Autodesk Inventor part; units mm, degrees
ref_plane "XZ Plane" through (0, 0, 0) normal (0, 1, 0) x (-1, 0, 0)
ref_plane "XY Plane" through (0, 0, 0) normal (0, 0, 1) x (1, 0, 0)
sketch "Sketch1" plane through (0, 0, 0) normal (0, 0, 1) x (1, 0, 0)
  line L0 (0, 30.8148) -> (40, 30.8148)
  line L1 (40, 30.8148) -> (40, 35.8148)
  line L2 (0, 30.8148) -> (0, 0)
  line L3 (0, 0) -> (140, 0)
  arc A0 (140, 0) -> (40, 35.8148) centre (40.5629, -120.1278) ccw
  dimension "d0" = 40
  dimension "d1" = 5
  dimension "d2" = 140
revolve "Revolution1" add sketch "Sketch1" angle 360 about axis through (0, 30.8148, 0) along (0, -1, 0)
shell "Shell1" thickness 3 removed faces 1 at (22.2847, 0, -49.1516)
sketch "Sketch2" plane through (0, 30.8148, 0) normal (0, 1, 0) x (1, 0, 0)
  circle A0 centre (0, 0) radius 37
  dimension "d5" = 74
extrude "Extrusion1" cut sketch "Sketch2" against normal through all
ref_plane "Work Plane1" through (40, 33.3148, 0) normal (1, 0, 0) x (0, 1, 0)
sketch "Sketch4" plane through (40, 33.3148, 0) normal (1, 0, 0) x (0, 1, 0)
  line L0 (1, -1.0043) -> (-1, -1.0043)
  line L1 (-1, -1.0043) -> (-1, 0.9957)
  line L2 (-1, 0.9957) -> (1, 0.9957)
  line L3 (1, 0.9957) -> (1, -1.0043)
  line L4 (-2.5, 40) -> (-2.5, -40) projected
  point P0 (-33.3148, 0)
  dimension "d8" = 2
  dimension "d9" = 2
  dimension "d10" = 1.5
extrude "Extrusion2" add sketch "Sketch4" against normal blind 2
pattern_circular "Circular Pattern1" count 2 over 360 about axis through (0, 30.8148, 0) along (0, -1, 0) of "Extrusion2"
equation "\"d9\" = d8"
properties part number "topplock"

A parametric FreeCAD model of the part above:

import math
import FreeCAD as App
import Part
import Sketcher
Q = App.Units.Quantity


def faces_at(feature, points):
    """Names of the faces that lie closest to the given points."""
    faces = feature.Shape.Faces
    near = lambda p: min(range(len(faces)), key=lambda i: faces[i].distToShape(Part.Vertex(*p))[0])
    return sorted({f"Face{near(p) + 1}" for p in points})

doc = App.newDocument("Part")
params = doc.addObject("Spreadsheet::Sheet", "Params")
for row, (alias, value) in enumerate([
    ("sketch1_width", "40 mm"),
    ("sketch1_width2", "140 mm"),
    ("sketch1_height", "5 mm"),
    ("revolution_angle", "360 deg"),
    ("thickness_wall", "3 mm"),
    ("sketch2_diameter", "74 mm"),
    ("sketch3_width", "2 mm"),
    ("pad1_length", "2 mm"),
], start=1):
    params.set(f"A{row}", alias)
    params.set(f"B{row}", "=" + value)
    params.setAlias(f"B{row}", alias)

body = doc.addObject("PartDesign::Body", "Body")

sketch1 = body.newObject("Sketcher::SketchObject", "Sketch")
sketch1.AttachmentSupport = (doc.getObject("XY_Plane"), [""])
sketch1.MapMode = "FlatFace"
sketch1.addGeometry(Part.LineSegment(App.Vector(40, 30.8148, 0), App.Vector(0, 30.8148, 0)), False)
sketch1.addGeometry(Part.LineSegment(App.Vector(0, 30.8148, 0), App.Vector(0, 0, 0)), False)
sketch1.addGeometry(Part.LineSegment(App.Vector(0, 0, 0), App.Vector(140, 0, 0)), False)
sketch1.addGeometry(Part.ArcOfCircle(Part.Circle(App.Vector(40.5629, -120.1278, 0), App.Vector(0, 0, 1), 155.94366), math.radians(50.383371), math.radians(90.206817)), False)
sketch1.addGeometry(Part.LineSegment(App.Vector(40, 35.8148, 0), App.Vector(40, 30.8148, 0)), False)
sketch1.addConstraint(Sketcher.Constraint("Coincident", 0, 2, 1, 1))
sketch1.addConstraint(Sketcher.Constraint("Coincident", 1, 2, 2, 1))
sketch1.addConstraint(Sketcher.Constraint("Coincident", 2, 2, 3, 1))
sketch1.addConstraint(Sketcher.Constraint("Coincident", 3, 2, 4, 1))
sketch1.addConstraint(Sketcher.Constraint("Coincident", 4, 2, 0, 1))
sketch1.addConstraint(Sketcher.Constraint("Horizontal", 0))
sketch1.addConstraint(Sketcher.Constraint("Vertical", 1))
sketch1.addConstraint(Sketcher.Constraint("Horizontal", 2))
sketch1.addConstraint(Sketcher.Constraint("Vertical", 4))
sketch1.addConstraint(Sketcher.Constraint("Coincident", 1, 2, -1, 1))
sketch1.addConstraint(Sketcher.Constraint("DistanceX", 0, 2, 0, 1, Q("40 mm")))
sketch1.addConstraint(Sketcher.Constraint("DistanceX", 2, 1, 2, 2, Q("140 mm")))
sketch1.addConstraint(Sketcher.Constraint("DistanceY", 4, 2, 4, 1, Q("5 mm")))
sketch1.addConstraint(Sketcher.Constraint("Radius", 3, Q("155.9437 mm")))
sketch1.addConstraint(Sketcher.Constraint("DistanceY", 1, 2, 1, 1, Q("30.8148 mm")))
sketch1.setExpression("Constraints[10]", "Params.sketch1_width")
sketch1.setExpression("Constraints[11]", "Params.sketch1_width2")
sketch1.setExpression("Constraints[12]", "Params.sketch1_height")
revolution = body.newObject("PartDesign::Revolution", "Revolution")
revolution.Profile = sketch1
revolution.ReferenceAxis = (sketch1, ["V_Axis"])
revolution.setExpression("Angle", "Params.revolution_angle")
doc.recompute()

thickness = body.newObject("PartDesign::Thickness", "Thickness")
thickness.Base = (revolution, faces_at(revolution, [(22.285, 0, -49.152)]))
thickness.setExpression("Value", "Params.thickness_wall")
thickness.Reversed = True
thickness.Join = "Intersection"

sketch2 = body.newObject("Sketcher::SketchObject", "Sketch001")
sketch2.AttachmentSupport = (doc.getObject("XZ_Plane"), [""])
sketch2.MapMode = "FlatFace"
sketch2.AttachmentOffset = App.Placement(App.Vector(0, 0, -30.8148), App.Rotation())
sketch2.addGeometry(Part.Circle(App.Vector(0, 0, 0), App.Vector(0, 0, 1), 37), False)
sketch2.addConstraint(Sketcher.Constraint("Coincident", 0, 3, -1, 1))
sketch2.addConstraint(Sketcher.Constraint("Diameter", 0, Q("74 mm")))
sketch2.setExpression("Constraints[1]", "Params.sketch2_diameter")
pocket1 = body.newObject("PartDesign::Pocket", "Pocket")
pocket1.Profile = sketch2
pocket1.Type = "ThroughAll"
pocket1.Reversed = True

sketch3 = body.newObject("Sketcher::SketchObject", "Sketch002")
sketch3.AttachmentSupport = (doc.getObject("YZ_Plane"), [""])
sketch3.MapMode = "FlatFace"
sketch3.AttachmentOffset = App.Placement(App.Vector(0, 0, 40), App.Rotation())
sketch3.addGeometry(Part.LineSegment(App.Vector(32.3148, -1.0043, 0), App.Vector(34.3148, -1.0043, 0)), False)
sketch3.addGeometry(Part.LineSegment(App.Vector(34.3148, -1.0043, 0), App.Vector(34.3148, 0.9957, 0)), False)
sketch3.addGeometry(Part.LineSegment(App.Vector(34.3148, 0.9957, 0), App.Vector(32.3148, 0.9957, 0)), False)
sketch3.addGeometry(Part.LineSegment(App.Vector(32.3148, 0.9957, 0), App.Vector(32.3148, -1.0043, 0)), False)
sketch3.addConstraint(Sketcher.Constraint("Coincident", 0, 2, 1, 1))
sketch3.addConstraint(Sketcher.Constraint("Coincident", 1, 2, 2, 1))
sketch3.addConstraint(Sketcher.Constraint("Coincident", 2, 2, 3, 1))
sketch3.addConstraint(Sketcher.Constraint("Coincident", 3, 2, 0, 1))
sketch3.addConstraint(Sketcher.Constraint("Horizontal", 0))
sketch3.addConstraint(Sketcher.Constraint("Vertical", 1))
sketch3.addConstraint(Sketcher.Constraint("Horizontal", 2))
sketch3.addConstraint(Sketcher.Constraint("Vertical", 3))
sketch3.addConstraint(Sketcher.Constraint("Equal", 2, 1))
sketch3.addConstraint(Sketcher.Constraint("DistanceX", 0, 1, 0, 2, Q("2 mm")))
sketch3.addConstraint(Sketcher.Constraint("DistanceX", -1, 1, 0, 2, Q("34.3148 mm")))
sketch3.addConstraint(Sketcher.Constraint("DistanceY", 0, 2, -1, 1, Q("1.0043 mm")))
sketch3.setExpression("Constraints[9]", "Params.sketch3_width")
pad1 = body.newObject("PartDesign::Pad", "Pad")
pad1.Profile = sketch3
pad1.setExpression("Length", "Params.pad1_length")
pad1.Reversed = True
doc.recompute()

polarpattern = body.newObject("PartDesign::PolarPattern", "PolarPattern")
polarpattern.Originals = [pad1]
polarpattern.Axis = (doc.getObject("Y_Axis"), [""])
polarpattern.Angle = 360
polarpattern.Occurrences = 2
body.Tip = polarpattern

doc.recompute()
